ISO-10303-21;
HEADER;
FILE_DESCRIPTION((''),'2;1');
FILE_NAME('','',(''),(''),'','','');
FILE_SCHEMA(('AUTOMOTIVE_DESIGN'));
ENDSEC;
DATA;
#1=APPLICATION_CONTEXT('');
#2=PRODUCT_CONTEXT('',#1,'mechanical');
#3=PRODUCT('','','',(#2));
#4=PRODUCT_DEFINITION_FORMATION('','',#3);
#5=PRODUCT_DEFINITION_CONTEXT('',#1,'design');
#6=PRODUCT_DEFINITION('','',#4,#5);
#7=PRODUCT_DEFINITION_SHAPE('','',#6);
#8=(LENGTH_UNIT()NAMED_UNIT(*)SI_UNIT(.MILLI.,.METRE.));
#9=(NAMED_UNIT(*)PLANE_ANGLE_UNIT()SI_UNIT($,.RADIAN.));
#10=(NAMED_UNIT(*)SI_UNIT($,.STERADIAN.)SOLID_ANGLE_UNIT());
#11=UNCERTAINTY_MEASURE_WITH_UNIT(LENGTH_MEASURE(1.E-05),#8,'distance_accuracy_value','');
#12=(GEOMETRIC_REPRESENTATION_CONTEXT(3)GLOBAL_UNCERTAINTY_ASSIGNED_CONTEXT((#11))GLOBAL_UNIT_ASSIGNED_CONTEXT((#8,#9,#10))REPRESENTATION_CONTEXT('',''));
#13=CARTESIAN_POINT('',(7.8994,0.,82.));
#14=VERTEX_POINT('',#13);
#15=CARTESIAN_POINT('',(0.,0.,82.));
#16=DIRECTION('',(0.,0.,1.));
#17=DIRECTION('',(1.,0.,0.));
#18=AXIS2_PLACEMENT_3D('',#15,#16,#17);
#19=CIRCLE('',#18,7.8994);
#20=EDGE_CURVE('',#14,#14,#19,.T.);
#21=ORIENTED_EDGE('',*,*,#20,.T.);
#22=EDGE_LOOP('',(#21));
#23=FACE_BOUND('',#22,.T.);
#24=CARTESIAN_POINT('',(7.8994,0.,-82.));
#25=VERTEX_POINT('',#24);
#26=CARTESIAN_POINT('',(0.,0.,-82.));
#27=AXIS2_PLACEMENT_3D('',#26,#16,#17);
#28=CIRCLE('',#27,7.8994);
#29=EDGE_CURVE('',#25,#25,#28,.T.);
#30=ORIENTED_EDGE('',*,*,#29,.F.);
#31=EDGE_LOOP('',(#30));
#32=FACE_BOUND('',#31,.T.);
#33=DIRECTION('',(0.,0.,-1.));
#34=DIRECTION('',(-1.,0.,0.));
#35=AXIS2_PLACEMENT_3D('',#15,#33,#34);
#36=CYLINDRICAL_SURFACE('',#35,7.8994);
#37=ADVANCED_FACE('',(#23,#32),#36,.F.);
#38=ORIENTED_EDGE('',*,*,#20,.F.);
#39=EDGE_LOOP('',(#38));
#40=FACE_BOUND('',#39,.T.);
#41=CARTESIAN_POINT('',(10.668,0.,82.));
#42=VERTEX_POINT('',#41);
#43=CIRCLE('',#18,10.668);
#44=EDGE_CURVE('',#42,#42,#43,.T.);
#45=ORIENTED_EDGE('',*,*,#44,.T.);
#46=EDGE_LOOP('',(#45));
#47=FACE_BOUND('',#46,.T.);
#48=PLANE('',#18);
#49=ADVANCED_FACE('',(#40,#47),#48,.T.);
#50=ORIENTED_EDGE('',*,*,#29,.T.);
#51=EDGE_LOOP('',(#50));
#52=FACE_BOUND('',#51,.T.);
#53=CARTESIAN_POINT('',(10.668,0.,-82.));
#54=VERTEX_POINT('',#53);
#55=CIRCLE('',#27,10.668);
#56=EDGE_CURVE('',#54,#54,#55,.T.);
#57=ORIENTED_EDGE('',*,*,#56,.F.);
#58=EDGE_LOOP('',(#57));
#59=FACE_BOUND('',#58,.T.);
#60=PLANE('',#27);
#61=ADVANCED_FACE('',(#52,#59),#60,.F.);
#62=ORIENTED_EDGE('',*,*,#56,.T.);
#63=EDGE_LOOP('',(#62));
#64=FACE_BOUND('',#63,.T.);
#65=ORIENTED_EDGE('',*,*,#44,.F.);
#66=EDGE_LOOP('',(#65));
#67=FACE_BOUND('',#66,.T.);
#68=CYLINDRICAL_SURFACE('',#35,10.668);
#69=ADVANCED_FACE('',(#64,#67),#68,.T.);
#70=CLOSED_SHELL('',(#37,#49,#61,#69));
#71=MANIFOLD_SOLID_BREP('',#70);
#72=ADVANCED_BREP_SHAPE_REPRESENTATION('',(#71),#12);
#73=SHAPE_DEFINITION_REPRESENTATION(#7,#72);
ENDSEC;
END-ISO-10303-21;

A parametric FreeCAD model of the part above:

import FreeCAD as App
import Part
import Sketcher

V = App.Vector
Q = App.Units.Quantity

doc = App.newDocument("Part")
body = doc.addObject("PartDesign::Body", "Body")

# Sketch on XY plane
sketch1 = body.newObject("Sketcher::SketchObject", "Sketch")
sketch1.AttachmentSupport = (doc.getObject("XY_Plane"), [""])
sketch1.MapMode = "FlatFace"
sketch1.addGeometry(Part.Circle(V(0, 0, 0), V(0, 0, 1), 11), False)
sketch1.addGeometry(Part.Circle(V(0, 0, 0), V(0, 0, 1), 8), False)
sketch1.addConstraint(Sketcher.Constraint("Coincident", 0, 3, -1, 1))
sketch1.addConstraint(Sketcher.Constraint("Coincident", 1, 3, -1, 1))
sketch1.addConstraint(Sketcher.Constraint("Diameter", 0, Q("0.84 in")))
sketch1.addConstraint(Sketcher.Constraint("Diameter", 1, Q("0.622 in")))
pad1 = body.newObject("PartDesign::Pad", "Pad")
pad1.Profile = sketch1
pad1.Length = 164
pad1.Midplane = True

doc.recompute()
